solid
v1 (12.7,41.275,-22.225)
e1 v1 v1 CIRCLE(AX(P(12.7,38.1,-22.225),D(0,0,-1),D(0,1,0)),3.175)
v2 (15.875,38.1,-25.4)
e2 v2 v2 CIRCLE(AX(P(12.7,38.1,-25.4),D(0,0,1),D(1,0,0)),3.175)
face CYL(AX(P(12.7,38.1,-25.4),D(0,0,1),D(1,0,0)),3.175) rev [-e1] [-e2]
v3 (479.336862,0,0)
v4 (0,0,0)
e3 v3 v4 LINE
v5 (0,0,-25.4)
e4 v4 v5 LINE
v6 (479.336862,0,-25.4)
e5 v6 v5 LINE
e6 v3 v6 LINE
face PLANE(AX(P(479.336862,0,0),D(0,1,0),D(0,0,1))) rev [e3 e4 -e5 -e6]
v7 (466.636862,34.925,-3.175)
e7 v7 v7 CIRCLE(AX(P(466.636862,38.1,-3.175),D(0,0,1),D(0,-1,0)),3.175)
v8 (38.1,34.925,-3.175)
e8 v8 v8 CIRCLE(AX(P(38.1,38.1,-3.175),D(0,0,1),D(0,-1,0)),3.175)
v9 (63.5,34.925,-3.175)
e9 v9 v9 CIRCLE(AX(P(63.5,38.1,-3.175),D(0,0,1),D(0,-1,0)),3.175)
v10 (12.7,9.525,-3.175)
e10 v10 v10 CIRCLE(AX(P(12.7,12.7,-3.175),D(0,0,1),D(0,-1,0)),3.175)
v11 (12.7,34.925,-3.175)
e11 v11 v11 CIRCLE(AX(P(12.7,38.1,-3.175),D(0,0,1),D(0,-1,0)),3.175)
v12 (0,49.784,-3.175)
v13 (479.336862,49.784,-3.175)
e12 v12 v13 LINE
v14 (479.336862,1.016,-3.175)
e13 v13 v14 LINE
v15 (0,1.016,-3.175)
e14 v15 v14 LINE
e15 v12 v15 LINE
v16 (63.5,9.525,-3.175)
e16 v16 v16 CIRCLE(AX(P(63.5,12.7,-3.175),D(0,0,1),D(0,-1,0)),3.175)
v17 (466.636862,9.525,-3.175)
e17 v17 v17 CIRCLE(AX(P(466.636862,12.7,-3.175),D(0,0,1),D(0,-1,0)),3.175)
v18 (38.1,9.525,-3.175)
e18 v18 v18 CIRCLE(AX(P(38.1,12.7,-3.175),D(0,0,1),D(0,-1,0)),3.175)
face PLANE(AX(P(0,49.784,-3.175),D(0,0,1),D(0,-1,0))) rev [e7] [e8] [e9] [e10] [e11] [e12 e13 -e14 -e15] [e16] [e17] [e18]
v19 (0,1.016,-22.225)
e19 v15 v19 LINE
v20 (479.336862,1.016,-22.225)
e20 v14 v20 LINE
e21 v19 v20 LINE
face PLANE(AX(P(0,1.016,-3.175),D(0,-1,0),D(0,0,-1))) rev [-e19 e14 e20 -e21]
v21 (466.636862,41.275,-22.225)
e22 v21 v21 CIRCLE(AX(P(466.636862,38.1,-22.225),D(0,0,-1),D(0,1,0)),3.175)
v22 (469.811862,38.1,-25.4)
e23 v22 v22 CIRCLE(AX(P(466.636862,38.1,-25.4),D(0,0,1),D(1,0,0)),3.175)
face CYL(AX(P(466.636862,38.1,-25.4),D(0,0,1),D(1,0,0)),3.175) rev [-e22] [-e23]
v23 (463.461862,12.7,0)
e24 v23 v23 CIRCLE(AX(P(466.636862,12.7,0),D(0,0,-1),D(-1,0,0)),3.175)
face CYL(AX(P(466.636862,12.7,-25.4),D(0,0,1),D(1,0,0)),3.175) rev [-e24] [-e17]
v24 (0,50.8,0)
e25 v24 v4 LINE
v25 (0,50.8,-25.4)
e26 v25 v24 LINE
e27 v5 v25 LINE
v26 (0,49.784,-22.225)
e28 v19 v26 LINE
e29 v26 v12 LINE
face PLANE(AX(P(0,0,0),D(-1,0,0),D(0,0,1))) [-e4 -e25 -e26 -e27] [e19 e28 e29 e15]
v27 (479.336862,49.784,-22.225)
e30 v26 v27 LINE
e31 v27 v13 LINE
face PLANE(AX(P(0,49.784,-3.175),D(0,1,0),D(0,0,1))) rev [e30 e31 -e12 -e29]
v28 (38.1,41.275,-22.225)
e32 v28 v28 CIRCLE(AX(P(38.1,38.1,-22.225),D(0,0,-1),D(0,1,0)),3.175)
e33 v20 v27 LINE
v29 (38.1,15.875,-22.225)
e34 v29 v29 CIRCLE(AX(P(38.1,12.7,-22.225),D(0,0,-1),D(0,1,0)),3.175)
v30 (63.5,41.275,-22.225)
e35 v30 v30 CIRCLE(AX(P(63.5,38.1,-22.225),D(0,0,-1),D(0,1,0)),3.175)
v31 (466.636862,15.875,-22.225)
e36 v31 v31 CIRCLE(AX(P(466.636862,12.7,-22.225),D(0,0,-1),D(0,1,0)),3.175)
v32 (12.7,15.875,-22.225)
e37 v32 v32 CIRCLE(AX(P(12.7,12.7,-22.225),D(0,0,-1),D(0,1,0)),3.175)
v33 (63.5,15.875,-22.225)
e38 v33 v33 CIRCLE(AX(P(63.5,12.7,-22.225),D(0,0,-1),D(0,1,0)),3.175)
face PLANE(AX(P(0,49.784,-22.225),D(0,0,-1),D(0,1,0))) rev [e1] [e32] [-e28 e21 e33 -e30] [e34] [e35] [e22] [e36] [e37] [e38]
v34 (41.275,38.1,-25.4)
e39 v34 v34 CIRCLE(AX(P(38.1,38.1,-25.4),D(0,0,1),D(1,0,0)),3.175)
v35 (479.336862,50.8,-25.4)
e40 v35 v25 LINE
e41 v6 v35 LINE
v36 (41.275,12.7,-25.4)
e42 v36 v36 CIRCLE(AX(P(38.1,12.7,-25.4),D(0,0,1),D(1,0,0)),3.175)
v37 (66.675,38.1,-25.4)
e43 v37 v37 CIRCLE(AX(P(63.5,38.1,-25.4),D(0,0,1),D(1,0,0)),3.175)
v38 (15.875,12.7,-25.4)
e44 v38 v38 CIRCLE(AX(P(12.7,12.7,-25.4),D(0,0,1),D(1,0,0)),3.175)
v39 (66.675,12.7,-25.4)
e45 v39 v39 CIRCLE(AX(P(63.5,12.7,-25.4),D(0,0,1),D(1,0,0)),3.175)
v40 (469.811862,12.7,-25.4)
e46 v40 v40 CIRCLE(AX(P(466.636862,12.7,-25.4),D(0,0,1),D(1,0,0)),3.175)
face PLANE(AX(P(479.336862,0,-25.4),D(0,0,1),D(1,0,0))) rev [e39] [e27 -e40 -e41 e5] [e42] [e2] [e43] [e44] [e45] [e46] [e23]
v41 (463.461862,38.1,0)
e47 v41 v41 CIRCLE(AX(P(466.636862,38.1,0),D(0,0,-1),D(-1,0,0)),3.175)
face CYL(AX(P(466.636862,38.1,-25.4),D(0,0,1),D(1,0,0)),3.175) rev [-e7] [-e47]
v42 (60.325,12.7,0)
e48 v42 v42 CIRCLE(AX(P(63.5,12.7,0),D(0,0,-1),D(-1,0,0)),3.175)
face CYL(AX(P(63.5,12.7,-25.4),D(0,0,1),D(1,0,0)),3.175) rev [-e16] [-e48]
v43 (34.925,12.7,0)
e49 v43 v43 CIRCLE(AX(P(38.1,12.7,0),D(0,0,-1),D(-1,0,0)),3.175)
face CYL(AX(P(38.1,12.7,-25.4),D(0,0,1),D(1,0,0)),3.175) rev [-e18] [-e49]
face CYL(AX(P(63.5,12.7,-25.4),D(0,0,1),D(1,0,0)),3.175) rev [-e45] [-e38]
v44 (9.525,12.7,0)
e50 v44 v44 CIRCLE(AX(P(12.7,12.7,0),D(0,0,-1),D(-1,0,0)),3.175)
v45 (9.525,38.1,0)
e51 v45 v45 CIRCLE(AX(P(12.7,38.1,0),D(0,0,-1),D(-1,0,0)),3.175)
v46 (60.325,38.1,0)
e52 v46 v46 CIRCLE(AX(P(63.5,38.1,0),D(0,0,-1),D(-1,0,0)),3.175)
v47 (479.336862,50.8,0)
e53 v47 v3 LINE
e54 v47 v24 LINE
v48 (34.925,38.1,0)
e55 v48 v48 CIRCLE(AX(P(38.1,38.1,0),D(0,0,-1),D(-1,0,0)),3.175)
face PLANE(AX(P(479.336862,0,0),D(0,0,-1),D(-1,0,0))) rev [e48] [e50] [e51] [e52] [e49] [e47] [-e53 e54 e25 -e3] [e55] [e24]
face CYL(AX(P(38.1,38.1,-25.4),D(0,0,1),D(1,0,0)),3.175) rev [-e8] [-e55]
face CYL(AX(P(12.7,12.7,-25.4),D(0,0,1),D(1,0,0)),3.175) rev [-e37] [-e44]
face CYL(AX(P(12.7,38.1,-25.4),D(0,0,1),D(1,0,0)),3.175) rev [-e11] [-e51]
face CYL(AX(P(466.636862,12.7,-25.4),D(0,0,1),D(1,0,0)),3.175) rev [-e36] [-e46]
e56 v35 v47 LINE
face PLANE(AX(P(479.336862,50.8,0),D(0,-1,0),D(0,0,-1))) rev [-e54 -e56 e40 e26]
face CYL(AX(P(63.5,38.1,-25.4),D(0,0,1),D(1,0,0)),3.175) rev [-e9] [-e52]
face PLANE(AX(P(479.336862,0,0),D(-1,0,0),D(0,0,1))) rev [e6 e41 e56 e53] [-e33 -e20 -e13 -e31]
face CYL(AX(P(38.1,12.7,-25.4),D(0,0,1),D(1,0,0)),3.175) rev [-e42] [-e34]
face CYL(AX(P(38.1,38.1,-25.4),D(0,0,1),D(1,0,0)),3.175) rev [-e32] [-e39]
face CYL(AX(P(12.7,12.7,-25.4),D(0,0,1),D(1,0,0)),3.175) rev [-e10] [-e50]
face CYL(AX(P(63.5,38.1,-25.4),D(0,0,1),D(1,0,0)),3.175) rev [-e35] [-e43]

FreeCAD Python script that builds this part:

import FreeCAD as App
import Part
import Sketcher

V = App.Vector
Q = App.Units.Quantity

doc = App.newDocument("Part")
body = doc.addObject("PartDesign::Body", "Body")

# Sketch on YZ plane
sketch1 = doc.addObject("Sketcher::SketchObject", "Sketch")
body.addObject(sketch1)
sketch1.AttachmentSupport = (doc.YZ_Plane, [""])
sketch1.MapMode = "FlatFace"
sketch1.addGeometry([
    Part.LineSegment(V(51, 0, 0), V(0, 0, 0)),
    Part.LineSegment(V(0, 0, 0), V(0, -25, 0)),
    Part.LineSegment(V(0, -25, 0), V(51, -25, 0)),
    Part.LineSegment(V(51, -25, 0), V(51, 0, 0)),
], False)
sketch1.addConstraint([
    Sketcher.Constraint("Coincident", 0, 2, 1, 1),
    Sketcher.Constraint("Coincident", 1, 2, 2, 1),
    Sketcher.Constraint("Coincident", 2, 2, 3, 1),
    Sketcher.Constraint("Coincident", 3, 2, 0, 1),
    Sketcher.Constraint("Horizontal", 0),
    Sketcher.Constraint("Vertical", 1),
    Sketcher.Constraint("Horizontal", 2),
    Sketcher.Constraint("Vertical", 3),
    Sketcher.Constraint("Coincident", 0, 2, -1, 1),
    Sketcher.Constraint("DistanceX", 0, 2, 0, 1, Q("2 in")),
    Sketcher.Constraint("DistanceY", 1, 2, 1, 1, Q("1 in")),
])
pad1 = doc.addObject("PartDesign::Pad", "Pad")
body.addObject(pad1)
pad1.Profile = sketch1
pad1.Length = 479.336862

# Sketch on YZ plane
sketch2 = doc.addObject("Sketcher::SketchObject", "Sketch001")
body.addObject(sketch2)
sketch2.AttachmentSupport = (doc.YZ_Plane, [""])
sketch2.MapMode = "FlatFace"
sketch2.AttachmentOffset = App.Placement(V(0, 0, 479.336862), App.Rotation())
sketch2.addGeometry([
    Part.LineSegment(V(50, -3, 0), V(1, -3, 0)),
    Part.LineSegment(V(1, -3, 0), V(1, -22, 0)),
    Part.LineSegment(V(1, -22, 0), V(50, -22, 0)),
    Part.LineSegment(V(50, -22, 0), V(50, -3, 0)),
], False)
sketch2.addConstraint([
    Sketcher.Constraint("Coincident", 0, 2, 1, 1),
    Sketcher.Constraint("Coincident", 1, 2, 2, 1),
    Sketcher.Constraint("Coincident", 2, 2, 3, 1),
    Sketcher.Constraint("Coincident", 3, 2, 0, 1),
    Sketcher.Constraint("Horizontal", 0),
    Sketcher.Constraint("Vertical", 1),
    Sketcher.Constraint("Horizontal", 2),
    Sketcher.Constraint("Vertical", 3),
    Sketcher.Constraint("DistanceX", 0, 2, 0, 1, Q("1.92 in")),
    Sketcher.Constraint("DistanceY", 1, 2, 1, 1, Q("0.75 in")),
    Sketcher.Constraint("DistanceX", -1, 1, 0, 2, Q("0.04 in")),
    Sketcher.Constraint("DistanceY", 0, 2, -1, 1, Q("0.125 in")),
])
pocket1 = doc.addObject("PartDesign::Pocket", "Pocket")
body.addObject(pocket1)
pocket1.Profile = sketch2
pocket1.Type = "ThroughAll"

# Sketch on XY plane
sketch3 = doc.addObject("Sketcher::SketchObject", "Sketch002")
body.addObject(sketch3)
sketch3.AttachmentSupport = (doc.XY_Plane, [""])
sketch3.MapMode = "FlatFace"
sketch3.addGeometry([
    Part.Circle(V(12.7, 38.1, 0), V(0, 0, 1), 3.2),  # 0
    Part.Circle(V(38.1, 38.1, 0), V(0, 0, 1), 3.2),  # 1
    Part.Circle(V(12.7, 12.7, 0), V(0, 0, 1), 3.2),  # 2
    Part.Circle(V(38.1, 12.7, 0), V(0, 0, 1), 3.2),  # 3
    Part.Circle(V(63.5, 38.1, 0), V(0, 0, 1), 3.2),  # 4
    Part.Circle(V(63.5, 12.7, 0), V(0, 0, 1), 3.2),  # 5
    Part.Circle(V(466.6, 38.1, 0), V(0, 0, 1), 3.2),  # 6
    Part.Circle(V(466.6, 12.7, 0), V(0, 0, 1), 3.2),  # 7
], False)
sketch3.addConstraint([
    Sketcher.Constraint("Equal", 0, 1),
    Sketcher.Constraint("Equal", 1, 2),
    Sketcher.Constraint("Equal", 2, 3),
    Sketcher.Constraint("Equal", 3, 4),
    Sketcher.Constraint("Equal", 4, 5),
    Sketcher.Constraint("Equal", 5, 6),
    Sketcher.Constraint("Equal", 6, 7),
    Sketcher.Constraint("Horizontal", 0, 3, 1, 3),
    Sketcher.Constraint("Horizontal", 2, 3, 3, 3),
    Sketcher.Constraint("Horizontal", 1, 3, 4, 3),
    Sketcher.Constraint("Horizontal", 3, 3, 5, 3),
    Sketcher.Constraint("Horizontal", 4, 3, 6, 3),
    Sketcher.Constraint("Horizontal", 5, 3, 7, 3),
    Sketcher.Constraint("Vertical", 0, 3, 2, 3),
    Sketcher.Constraint("Vertical", 1, 3, 3, 3),
    Sketcher.Constraint("Vertical", 4, 3, 5, 3),
    Sketcher.Constraint("Vertical", 6, 3, 7, 3),
    Sketcher.Constraint("Diameter", 0, Q("0.25 in")),
    Sketcher.Constraint("DistanceX", 0, 3, 1, 3, Q("1 in")),
    Sketcher.Constraint("DistanceY", 2, 3, 0, 3, Q("1 in")),
    Sketcher.Constraint("DistanceX", 1, 3, 4, 3, Q("1 in")),
    Sketcher.Constraint("DistanceX", -1, 1, 0, 3, Q("0.5 in")),
    Sketcher.Constraint("DistanceY", -1, 1, 0, 3, Q("1.5 in")),
    Sketcher.Constraint("DistanceX", -1, 1, 6, 3, Q("466.636862 mm")),
])
pocket2 = doc.addObject("PartDesign::Pocket", "Pocket001")
body.addObject(pocket2)
pocket2.Profile = sketch3
pocket2.Type = "ThroughAll"
pocket2.Midplane = True

doc.recompute()
